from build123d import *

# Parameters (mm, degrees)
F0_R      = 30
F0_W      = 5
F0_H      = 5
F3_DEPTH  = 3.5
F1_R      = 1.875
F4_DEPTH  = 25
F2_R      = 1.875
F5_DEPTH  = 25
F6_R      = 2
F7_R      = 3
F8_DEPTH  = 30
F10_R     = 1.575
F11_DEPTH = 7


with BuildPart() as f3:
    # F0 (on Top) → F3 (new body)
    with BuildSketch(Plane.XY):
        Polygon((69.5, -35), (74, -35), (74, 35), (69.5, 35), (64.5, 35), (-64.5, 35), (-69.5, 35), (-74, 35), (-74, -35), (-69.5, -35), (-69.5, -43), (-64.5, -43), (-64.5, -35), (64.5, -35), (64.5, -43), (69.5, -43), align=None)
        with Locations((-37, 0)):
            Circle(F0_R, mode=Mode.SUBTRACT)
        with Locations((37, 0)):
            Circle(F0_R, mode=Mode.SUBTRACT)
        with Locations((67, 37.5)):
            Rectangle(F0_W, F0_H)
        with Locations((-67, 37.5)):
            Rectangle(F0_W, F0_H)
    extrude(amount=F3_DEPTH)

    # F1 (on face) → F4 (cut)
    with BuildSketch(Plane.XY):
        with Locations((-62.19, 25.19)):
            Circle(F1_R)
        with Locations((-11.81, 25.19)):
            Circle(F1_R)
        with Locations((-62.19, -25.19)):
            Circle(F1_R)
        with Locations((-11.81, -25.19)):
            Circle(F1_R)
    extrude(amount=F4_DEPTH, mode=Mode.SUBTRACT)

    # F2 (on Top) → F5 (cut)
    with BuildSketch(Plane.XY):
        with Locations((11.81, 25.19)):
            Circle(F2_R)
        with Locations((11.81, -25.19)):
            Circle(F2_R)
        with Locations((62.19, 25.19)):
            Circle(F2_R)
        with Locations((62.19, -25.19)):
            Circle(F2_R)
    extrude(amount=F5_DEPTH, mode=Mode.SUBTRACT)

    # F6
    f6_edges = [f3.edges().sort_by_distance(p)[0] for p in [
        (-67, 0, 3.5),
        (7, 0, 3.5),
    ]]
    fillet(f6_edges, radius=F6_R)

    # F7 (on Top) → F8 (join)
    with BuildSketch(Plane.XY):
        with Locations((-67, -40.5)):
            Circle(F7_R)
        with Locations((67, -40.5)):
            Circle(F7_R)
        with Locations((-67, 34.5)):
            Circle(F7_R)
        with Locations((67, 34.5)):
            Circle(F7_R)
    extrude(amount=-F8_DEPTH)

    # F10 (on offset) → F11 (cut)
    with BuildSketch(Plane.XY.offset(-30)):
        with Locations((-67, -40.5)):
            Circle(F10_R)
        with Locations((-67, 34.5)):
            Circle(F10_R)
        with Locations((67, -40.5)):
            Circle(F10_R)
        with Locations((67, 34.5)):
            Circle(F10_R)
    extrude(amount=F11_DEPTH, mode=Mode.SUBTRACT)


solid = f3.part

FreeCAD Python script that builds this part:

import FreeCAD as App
import Part
import Sketcher

V = App.Vector


def edges_at(feature, points):
    """Names of the edges that pass closest to the given points."""
    edges = feature.Shape.Edges
    near = lambda p: min(range(len(edges)), key=lambda i: edges[i].distToShape(Part.Vertex(*p))[0])
    return sorted({f"Edge{near(p) + 1}" for p in points})


def add_polygon(sketch, points):
    """Adds a closed chain of lines whose ends are joined by coincident constraints."""
    first, n = sketch.GeometryCount, len(points)
    for a, b in zip(points, points[1:] + points[:1]):
        sketch.addGeometry(Part.LineSegment(App.Vector(*a, 0), App.Vector(*b, 0)), False)
    for i in range(n):
        sketch.addConstraint(Sketcher.Constraint("Coincident", first + i, 2, first + (i + 1) % n, 1))

doc = App.newDocument("Part")
body = doc.addObject("PartDesign::Body", "Body")

sketch1 = body.newObject("Sketcher::SketchObject", "Sketch")
sketch1.AttachmentSupport = (doc.getObject("XY_Plane"), [""])
sketch1.MapMode = "FlatFace"
add_polygon(sketch1, [(69.5, -35), (74, -35), (74, 35), (69.5, 35), (69.5, 40), (64.5, 40), (64.5, 35), (-64.5, 35), (-64.5, 40), (-69.5, 40), (-69.5, 35), (-74, 35), (-74, -35), (-69.5, -35), (-69.5, -43), (-64.5, -43), (-64.5, -35), (64.5, -35), (64.5, -43), (69.5, -43)])
sketch1.addGeometry(Part.Circle(V(-37, 0, 0), V(0, 0, 1), 30), False)
sketch1.addGeometry(Part.Circle(V(37, 0, 0), V(0, 0, 1), 30), False)
sketch1.addConstraint([
    Sketcher.Constraint("Horizontal", 0),
    Sketcher.Constraint("Vertical", 1),
    Sketcher.Constraint("Horizontal", 2),
    Sketcher.Constraint("Vertical", 3),
    Sketcher.Constraint("Horizontal", 4),
    Sketcher.Constraint("Vertical", 5),
    Sketcher.Constraint("Horizontal", 6),
    Sketcher.Constraint("Vertical", 7),
    Sketcher.Constraint("Horizontal", 8),
    Sketcher.Constraint("Vertical", 9),
    Sketcher.Constraint("Horizontal", 10),
    Sketcher.Constraint("Vertical", 11),
    Sketcher.Constraint("Horizontal", 12),
    Sketcher.Constraint("Vertical", 13),
    Sketcher.Constraint("Horizontal", 14),
    Sketcher.Constraint("Vertical", 15),
    Sketcher.Constraint("Horizontal", 16),
    Sketcher.Constraint("Vertical", 17),
    Sketcher.Constraint("Horizontal", 18),
    Sketcher.Constraint("Vertical", 19),
    Sketcher.Constraint("Equal", 20, 21),
    Sketcher.Constraint("Symmetric", 20, 3, 21, 3, -1, 1),
    Sketcher.Constraint("Symmetric", 0, 2, 10, 2, -1, 1),
    Sketcher.Constraint("Symmetric", 2, 2, 12, 2, -1, 1),
    Sketcher.Constraint("Symmetric", 5, 2, 15, 2, -1, 1),
    Sketcher.Constraint("Symmetric", 4, 2, 7, 2, -2),
    Sketcher.Constraint("Symmetric", 2, 2, 9, 2, -2),
    Sketcher.Constraint("Symmetric", 14, 2, 17, 2, -2),
    Sketcher.Constraint("PointOnObject", 20, 3, -1),
    Sketcher.Constraint("Horizontal", 2, 2, 5, 2),
    Sketcher.Constraint("Vertical", 3, 2, 18, 2),
    Sketcher.Constraint("Equal", 18, 3),
    Sketcher.Constraint("Diameter", 20, 60.0),
    Sketcher.Constraint("DistanceX", 4, 2, 4, 1, 5.0),
    Sketcher.Constraint("DistanceX", 6, 2, 6, 1, 129.0),
    Sketcher.Constraint("DistanceY", 1, 1, 1, 2, 70.0),
    Sketcher.Constraint("DistanceY", 13, 2, 13, 1, 8.0),
    Sketcher.Constraint("DistanceX", 0, 1, 0, 2, 4.5),
    Sketcher.Constraint("DistanceX", 20, 3, -1, 1, 37.0),
])
pad1 = body.newObject("PartDesign::Pad", "Pad")
pad1.Profile = sketch1
pad1.Length = 3.5

sketch2 = body.newObject("Sketcher::SketchObject", "Sketch001")
sketch2.AttachmentSupport = (doc.getObject("XY_Plane"), [""])
sketch2.MapMode = "FlatFace"
sketch2.addGeometry([
    Part.Circle(V(-62.19, 25.19, 0), V(0, 0, 1), 1.875),
    Part.Circle(V(-11.81, 25.19, 0), V(0, 0, 1), 1.875),
    Part.Circle(V(-62.19, -25.19, 0), V(0, 0, 1), 1.875),
    Part.Circle(V(-11.81, -25.19, 0), V(0, 0, 1), 1.875),
], False)
sketch2.addConstraint([
    Sketcher.Constraint("Equal", 0, 1),
    Sketcher.Constraint("Equal", 1, 2),
    Sketcher.Constraint("Equal", 2, 3),
    Sketcher.Constraint("Symmetric", 0, 3, 2, 3, -1),
    Sketcher.Constraint("Symmetric", 1, 3, 3, 3, -1),
    Sketcher.Constraint("Horizontal", 0, 3, 1, 3),
    Sketcher.Constraint("Diameter", 0, 3.75),
    Sketcher.Constraint("DistanceX", 0, 3, -1, 1, 62.19),
    Sketcher.Constraint("DistanceY", -1, 1, 0, 3, 25.19),
    Sketcher.Constraint("DistanceX", 1, 3, -1, 1, 11.81),
])
pocket1 = body.newObject("PartDesign::Pocket", "Pocket")
pocket1.Profile = sketch2
pocket1.Length = 25
pocket1.Reversed = True

sketch3 = body.newObject("Sketcher::SketchObject", "Sketch002")
sketch3.AttachmentSupport = (doc.getObject("XY_Plane"), [""])
sketch3.MapMode = "FlatFace"
sketch3.addGeometry([
    Part.Circle(V(11.81, 25.19, 0), V(0, 0, 1), 1.875),
    Part.Circle(V(11.81, -25.19, 0), V(0, 0, 1), 1.875),
    Part.Circle(V(62.19, 25.19, 0), V(0, 0, 1), 1.875),
    Part.Circle(V(62.19, -25.19, 0), V(0, 0, 1), 1.875),
], False)
sketch3.addConstraint([
    Sketcher.Constraint("Equal", 0, 1),
    Sketcher.Constraint("Equal", 1, 2),
    Sketcher.Constraint("Equal", 2, 3),
    Sketcher.Constraint("Symmetric", 0, 3, 1, 3, -1),
    Sketcher.Constraint("Symmetric", 2, 3, 3, 3, -1),
    Sketcher.Constraint("Horizontal", 0, 3, 2, 3),
    Sketcher.Constraint("Diameter", 0, 3.75),
    Sketcher.Constraint("DistanceX", -1, 1, 0, 3, 11.81),
    Sketcher.Constraint("DistanceY", -1, 1, 0, 3, 25.19),
    Sketcher.Constraint("DistanceX", -1, 1, 2, 3, 62.19),
])
pocket2 = body.newObject("PartDesign::Pocket", "Pocket001")
pocket2.Profile = sketch3
pocket2.Length = 25
pocket2.Reversed = True
doc.recompute()

fillet = body.newObject("PartDesign::Fillet", "Fillet")
fillet.Base = (pocket2, edges_at(pocket2, [(-67, 0, 3.5), (7, 0, 3.5)]))
fillet.Radius = 2

sketch4 = body.newObject("Sketcher::SketchObject", "Sketch003")
sketch4.AttachmentSupport = (doc.getObject("XY_Plane"), [""])
sketch4.MapMode = "FlatFace"
sketch4.addGeometry([
    Part.Circle(V(-67, -40.5, 0), V(0, 0, 1), 3),
    Part.Circle(V(67, -40.5, 0), V(0, 0, 1), 3),
    Part.Circle(V(-67, 34.5, 0), V(0, 0, 1), 3),
    Part.Circle(V(67, 34.5, 0), V(0, 0, 1), 3),
], False)
sketch4.addConstraint([
    Sketcher.Constraint("Equal", 0, 1),
    Sketcher.Constraint("Equal", 1, 2),
    Sketcher.Constraint("Equal", 2, 3),
    Sketcher.Constraint("Symmetric", 0, 3, 1, 3, -2),
    Sketcher.Constraint("Symmetric", 2, 3, 3, 3, -2),
    Sketcher.Constraint("Vertical", 0, 3, 2, 3),
    Sketcher.Constraint("Diameter", 0, 6.0),
    Sketcher.Constraint("DistanceX", 0, 3, -1, 1, 67.0),
    Sketcher.Constraint("DistanceY", 0, 3, 2, 3, 75.0),
    Sketcher.Constraint("DistanceY", 0, 3, -1, 1, 40.5),
])
pad2 = body.newObject("PartDesign::Pad", "Pad001")
pad2.Profile = sketch4
pad2.Length = 30
pad2.Reversed = True

sketch5 = body.newObject("Sketcher::SketchObject", "Sketch004")
sketch5.AttachmentSupport = (doc.getObject("XY_Plane"), [""])
sketch5.MapMode = "FlatFace"
sketch5.AttachmentOffset = App.Placement(V(0, 0, -30), App.Rotation())
sketch5.addGeometry([
    Part.Circle(V(-67, -40.5, 0), V(0, 0, 1), 1.575),
    Part.Circle(V(-67, 34.5, 0), V(0, 0, 1), 1.575),
    Part.Circle(V(67, -40.5, 0), V(0, 0, 1), 1.575),
    Part.Circle(V(67, 34.5, 0), V(0, 0, 1), 1.575),
], False)
sketch5.addConstraint([
    Sketcher.Constraint("Equal", 0, 1),
    Sketcher.Constraint("Equal", 1, 2),
    Sketcher.Constraint("Equal", 2, 3),
    Sketcher.Constraint("Symmetric", 0, 3, 2, 3, -2),
    Sketcher.Constraint("Symmetric", 1, 3, 3, 3, -2),
    Sketcher.Constraint("Vertical", 0, 3, 1, 3),
    Sketcher.Constraint("Diameter", 0, 3.15),
    Sketcher.Constraint("DistanceX", 0, 3, -1, 1, 67.0),
    Sketcher.Constraint("DistanceY", 0, 3, 1, 3, 75.0),
    Sketcher.Constraint("DistanceY", 0, 3, -1, 1, 40.5),
])
pocket3 = body.newObject("PartDesign::Pocket", "Pocket002")
pocket3.Profile = sketch5
pocket3.Length = 7
pocket3.Reversed = True

doc.recompute()
